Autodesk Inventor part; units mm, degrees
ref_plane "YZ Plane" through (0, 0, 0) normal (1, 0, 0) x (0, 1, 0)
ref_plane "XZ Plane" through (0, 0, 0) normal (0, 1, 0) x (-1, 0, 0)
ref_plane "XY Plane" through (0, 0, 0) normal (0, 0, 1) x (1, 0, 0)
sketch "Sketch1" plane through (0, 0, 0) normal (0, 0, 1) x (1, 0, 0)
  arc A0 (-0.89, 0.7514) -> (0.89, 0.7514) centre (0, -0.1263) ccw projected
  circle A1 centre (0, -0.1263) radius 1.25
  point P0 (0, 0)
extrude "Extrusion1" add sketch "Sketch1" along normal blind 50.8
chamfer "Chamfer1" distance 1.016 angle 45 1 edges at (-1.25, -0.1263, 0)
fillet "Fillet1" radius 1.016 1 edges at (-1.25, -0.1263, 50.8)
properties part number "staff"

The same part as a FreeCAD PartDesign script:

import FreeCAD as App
import Part
import Sketcher
from FreeCAD import Vector
Q = App.Units.Quantity


def edges_at(feature, points):
    """Names of the edges that pass closest to the given points."""
    edges = feature.Shape.Edges
    near = lambda p: min(range(len(edges)), key=lambda i: edges[i].distToShape(Part.Vertex(*p))[0])
    return sorted({f"Edge{near(p) + 1}" for p in points})

doc = App.newDocument("Part")
body = doc.addObject("PartDesign::Body", "Body")

sketch1 = body.newObject("Sketcher::SketchObject", "Sketch")
sketch1.AttachmentSupport = (doc.getObject("XY_Plane"), [""])
sketch1.MapMode = "FlatFace"
sketch1.addGeometry(Part.Circle(Vector(0, -0.1263, 0), Vector(0, 0, 1), 1.249983), False)
sketch1.addConstraint(Sketcher.Constraint("PointOnObject", 0, 3, -2))
sketch1.addConstraint(Sketcher.Constraint("Diameter", 0, 2.5))
sketch1.addConstraint(Sketcher.Constraint("DistanceY", 0, 3, -1, 1, 0.1263))
pad1 = body.newObject("PartDesign::Pad", "Pad")
pad1.Profile = sketch1
pad1.Length = Q("2 in")
doc.recompute()

chamfer = body.newObject("PartDesign::Chamfer", "Chamfer")
chamfer.Base = (pad1, edges_at(pad1, [(-1.25, -0.126, 0)]))
chamfer.Size = Q("0.04 in")
doc.recompute()

fillet = body.newObject("PartDesign::Fillet", "Fillet")
fillet.Base = (chamfer, edges_at(chamfer, [(-1.25, -0.126, 50.8)]))
fillet.Radius = Q("0.04 in")

doc.recompute()
